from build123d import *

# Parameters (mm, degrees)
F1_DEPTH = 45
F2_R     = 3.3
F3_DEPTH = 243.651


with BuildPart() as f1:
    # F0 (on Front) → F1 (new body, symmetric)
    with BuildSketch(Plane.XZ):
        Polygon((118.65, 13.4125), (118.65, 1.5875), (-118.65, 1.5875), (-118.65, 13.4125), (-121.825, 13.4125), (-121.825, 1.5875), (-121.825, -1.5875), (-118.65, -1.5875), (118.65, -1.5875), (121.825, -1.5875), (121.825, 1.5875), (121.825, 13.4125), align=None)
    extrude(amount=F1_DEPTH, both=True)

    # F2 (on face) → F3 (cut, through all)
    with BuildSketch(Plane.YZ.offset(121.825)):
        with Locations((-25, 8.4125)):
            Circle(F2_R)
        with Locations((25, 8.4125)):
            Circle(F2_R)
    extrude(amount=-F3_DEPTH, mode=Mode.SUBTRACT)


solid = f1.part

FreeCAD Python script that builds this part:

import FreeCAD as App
import Part
import Sketcher

V = App.Vector

doc = App.newDocument("Part")
body = doc.addObject("PartDesign::Body", "Body")

# Sketch on XZ plane
sketch1 = doc.addObject("Sketcher::SketchObject", "Sketch")
body.addObject(sketch1)
sketch1.AttachmentSupport = (doc.XZ_Plane, [""])
sketch1.MapMode = "FlatFace"
sketch1.addGeometry([
    Part.LineSegment(V(118.7, 13.4, 0), V(118.7, 1.6, 0)),  # 0
    Part.LineSegment(V(118.7, 1.6, 0), V(-118.7, 1.6, 0)),  # 1
    Part.LineSegment(V(-118.7, 1.6, 0), V(-118.7, 13.4, 0)),  # 2
    Part.LineSegment(V(-118.7, 13.4, 0), V(-121.8, 13.4, 0)),  # 3
    Part.LineSegment(V(-121.8, 13.4, 0), V(-121.8, -1.6, 0)),  # 4
    Part.LineSegment(V(-121.8, -1.6, 0), V(121.8, -1.6, 0)),  # 5
    Part.LineSegment(V(121.8, -1.6, 0), V(121.8, 13.4, 0)),  # 6
    Part.LineSegment(V(121.8, 13.4, 0), V(118.7, 13.4, 0)),  # 7
], False)
sketch1.addConstraint([
    Sketcher.Constraint("Coincident", 0, 2, 1, 1),
    Sketcher.Constraint("Coincident", 1, 2, 2, 1),
    Sketcher.Constraint("Coincident", 2, 2, 3, 1),
    Sketcher.Constraint("Coincident", 3, 2, 4, 1),
    Sketcher.Constraint("Coincident", 4, 2, 5, 1),
    Sketcher.Constraint("Coincident", 5, 2, 6, 1),
    Sketcher.Constraint("Coincident", 6, 2, 7, 1),
    Sketcher.Constraint("Coincident", 7, 2, 0, 1),
    Sketcher.Constraint("Vertical", 0),
    Sketcher.Constraint("Horizontal", 1),
    Sketcher.Constraint("Vertical", 2),
    Sketcher.Constraint("Horizontal", 3),
    Sketcher.Constraint("Vertical", 4),
    Sketcher.Constraint("Horizontal", 5),
    Sketcher.Constraint("Vertical", 6),
    Sketcher.Constraint("Horizontal", 7),
    Sketcher.Constraint("Symmetric", 3, 2, 6, 2, -2),
    Sketcher.Constraint("Equal", 3, 7),
    Sketcher.Constraint("DistanceY", 4, 2, 4, 1, 15.0),
    Sketcher.Constraint("DistanceX", 1, 2, 1, 1, 237.3),
    Sketcher.Constraint("DistanceX", 5, 1, 5, 2, 243.65),
    Sketcher.Constraint("DistanceY", 0, 2, 0, 1, 11.825),
    Sketcher.Constraint("DistanceY", -1, 1, 0, 2, 1.5875),
])
pad1 = doc.addObject("PartDesign::Pad", "Pad")
body.addObject(pad1)
pad1.Profile = sketch1
pad1.Length = 90
pad1.Midplane = True

# Sketch on YZ plane
sketch2 = doc.addObject("Sketcher::SketchObject", "Sketch001")
body.addObject(sketch2)
sketch2.AttachmentSupport = (doc.YZ_Plane, [""])
sketch2.MapMode = "FlatFace"
sketch2.AttachmentOffset = App.Placement(V(0, 0, 121.825), App.Rotation())
sketch2.addGeometry([
    Part.Circle(V(-25, 8.4, 0), V(0, 0, 1), 3.3),
    Part.Circle(V(25, 8.4, 0), V(0, 0, 1), 3.3),
], False)
sketch2.addConstraint([
    Sketcher.Constraint("Equal", 0, 1),
    Sketcher.Constraint("Symmetric", 0, 3, 1, 3, -2),
    Sketcher.Constraint("Diameter", 0, 6.6),
    Sketcher.Constraint("DistanceX", 0, 3, -1, 1, 25.0),
    Sketcher.Constraint("DistanceY", -1, 1, 0, 3, 8.4125),
])
pocket1 = doc.addObject("PartDesign::Pocket", "Pocket")
body.addObject(pocket1)
pocket1.Profile = sketch2
pocket1.Type = "ThroughAll"

doc.recompute()
